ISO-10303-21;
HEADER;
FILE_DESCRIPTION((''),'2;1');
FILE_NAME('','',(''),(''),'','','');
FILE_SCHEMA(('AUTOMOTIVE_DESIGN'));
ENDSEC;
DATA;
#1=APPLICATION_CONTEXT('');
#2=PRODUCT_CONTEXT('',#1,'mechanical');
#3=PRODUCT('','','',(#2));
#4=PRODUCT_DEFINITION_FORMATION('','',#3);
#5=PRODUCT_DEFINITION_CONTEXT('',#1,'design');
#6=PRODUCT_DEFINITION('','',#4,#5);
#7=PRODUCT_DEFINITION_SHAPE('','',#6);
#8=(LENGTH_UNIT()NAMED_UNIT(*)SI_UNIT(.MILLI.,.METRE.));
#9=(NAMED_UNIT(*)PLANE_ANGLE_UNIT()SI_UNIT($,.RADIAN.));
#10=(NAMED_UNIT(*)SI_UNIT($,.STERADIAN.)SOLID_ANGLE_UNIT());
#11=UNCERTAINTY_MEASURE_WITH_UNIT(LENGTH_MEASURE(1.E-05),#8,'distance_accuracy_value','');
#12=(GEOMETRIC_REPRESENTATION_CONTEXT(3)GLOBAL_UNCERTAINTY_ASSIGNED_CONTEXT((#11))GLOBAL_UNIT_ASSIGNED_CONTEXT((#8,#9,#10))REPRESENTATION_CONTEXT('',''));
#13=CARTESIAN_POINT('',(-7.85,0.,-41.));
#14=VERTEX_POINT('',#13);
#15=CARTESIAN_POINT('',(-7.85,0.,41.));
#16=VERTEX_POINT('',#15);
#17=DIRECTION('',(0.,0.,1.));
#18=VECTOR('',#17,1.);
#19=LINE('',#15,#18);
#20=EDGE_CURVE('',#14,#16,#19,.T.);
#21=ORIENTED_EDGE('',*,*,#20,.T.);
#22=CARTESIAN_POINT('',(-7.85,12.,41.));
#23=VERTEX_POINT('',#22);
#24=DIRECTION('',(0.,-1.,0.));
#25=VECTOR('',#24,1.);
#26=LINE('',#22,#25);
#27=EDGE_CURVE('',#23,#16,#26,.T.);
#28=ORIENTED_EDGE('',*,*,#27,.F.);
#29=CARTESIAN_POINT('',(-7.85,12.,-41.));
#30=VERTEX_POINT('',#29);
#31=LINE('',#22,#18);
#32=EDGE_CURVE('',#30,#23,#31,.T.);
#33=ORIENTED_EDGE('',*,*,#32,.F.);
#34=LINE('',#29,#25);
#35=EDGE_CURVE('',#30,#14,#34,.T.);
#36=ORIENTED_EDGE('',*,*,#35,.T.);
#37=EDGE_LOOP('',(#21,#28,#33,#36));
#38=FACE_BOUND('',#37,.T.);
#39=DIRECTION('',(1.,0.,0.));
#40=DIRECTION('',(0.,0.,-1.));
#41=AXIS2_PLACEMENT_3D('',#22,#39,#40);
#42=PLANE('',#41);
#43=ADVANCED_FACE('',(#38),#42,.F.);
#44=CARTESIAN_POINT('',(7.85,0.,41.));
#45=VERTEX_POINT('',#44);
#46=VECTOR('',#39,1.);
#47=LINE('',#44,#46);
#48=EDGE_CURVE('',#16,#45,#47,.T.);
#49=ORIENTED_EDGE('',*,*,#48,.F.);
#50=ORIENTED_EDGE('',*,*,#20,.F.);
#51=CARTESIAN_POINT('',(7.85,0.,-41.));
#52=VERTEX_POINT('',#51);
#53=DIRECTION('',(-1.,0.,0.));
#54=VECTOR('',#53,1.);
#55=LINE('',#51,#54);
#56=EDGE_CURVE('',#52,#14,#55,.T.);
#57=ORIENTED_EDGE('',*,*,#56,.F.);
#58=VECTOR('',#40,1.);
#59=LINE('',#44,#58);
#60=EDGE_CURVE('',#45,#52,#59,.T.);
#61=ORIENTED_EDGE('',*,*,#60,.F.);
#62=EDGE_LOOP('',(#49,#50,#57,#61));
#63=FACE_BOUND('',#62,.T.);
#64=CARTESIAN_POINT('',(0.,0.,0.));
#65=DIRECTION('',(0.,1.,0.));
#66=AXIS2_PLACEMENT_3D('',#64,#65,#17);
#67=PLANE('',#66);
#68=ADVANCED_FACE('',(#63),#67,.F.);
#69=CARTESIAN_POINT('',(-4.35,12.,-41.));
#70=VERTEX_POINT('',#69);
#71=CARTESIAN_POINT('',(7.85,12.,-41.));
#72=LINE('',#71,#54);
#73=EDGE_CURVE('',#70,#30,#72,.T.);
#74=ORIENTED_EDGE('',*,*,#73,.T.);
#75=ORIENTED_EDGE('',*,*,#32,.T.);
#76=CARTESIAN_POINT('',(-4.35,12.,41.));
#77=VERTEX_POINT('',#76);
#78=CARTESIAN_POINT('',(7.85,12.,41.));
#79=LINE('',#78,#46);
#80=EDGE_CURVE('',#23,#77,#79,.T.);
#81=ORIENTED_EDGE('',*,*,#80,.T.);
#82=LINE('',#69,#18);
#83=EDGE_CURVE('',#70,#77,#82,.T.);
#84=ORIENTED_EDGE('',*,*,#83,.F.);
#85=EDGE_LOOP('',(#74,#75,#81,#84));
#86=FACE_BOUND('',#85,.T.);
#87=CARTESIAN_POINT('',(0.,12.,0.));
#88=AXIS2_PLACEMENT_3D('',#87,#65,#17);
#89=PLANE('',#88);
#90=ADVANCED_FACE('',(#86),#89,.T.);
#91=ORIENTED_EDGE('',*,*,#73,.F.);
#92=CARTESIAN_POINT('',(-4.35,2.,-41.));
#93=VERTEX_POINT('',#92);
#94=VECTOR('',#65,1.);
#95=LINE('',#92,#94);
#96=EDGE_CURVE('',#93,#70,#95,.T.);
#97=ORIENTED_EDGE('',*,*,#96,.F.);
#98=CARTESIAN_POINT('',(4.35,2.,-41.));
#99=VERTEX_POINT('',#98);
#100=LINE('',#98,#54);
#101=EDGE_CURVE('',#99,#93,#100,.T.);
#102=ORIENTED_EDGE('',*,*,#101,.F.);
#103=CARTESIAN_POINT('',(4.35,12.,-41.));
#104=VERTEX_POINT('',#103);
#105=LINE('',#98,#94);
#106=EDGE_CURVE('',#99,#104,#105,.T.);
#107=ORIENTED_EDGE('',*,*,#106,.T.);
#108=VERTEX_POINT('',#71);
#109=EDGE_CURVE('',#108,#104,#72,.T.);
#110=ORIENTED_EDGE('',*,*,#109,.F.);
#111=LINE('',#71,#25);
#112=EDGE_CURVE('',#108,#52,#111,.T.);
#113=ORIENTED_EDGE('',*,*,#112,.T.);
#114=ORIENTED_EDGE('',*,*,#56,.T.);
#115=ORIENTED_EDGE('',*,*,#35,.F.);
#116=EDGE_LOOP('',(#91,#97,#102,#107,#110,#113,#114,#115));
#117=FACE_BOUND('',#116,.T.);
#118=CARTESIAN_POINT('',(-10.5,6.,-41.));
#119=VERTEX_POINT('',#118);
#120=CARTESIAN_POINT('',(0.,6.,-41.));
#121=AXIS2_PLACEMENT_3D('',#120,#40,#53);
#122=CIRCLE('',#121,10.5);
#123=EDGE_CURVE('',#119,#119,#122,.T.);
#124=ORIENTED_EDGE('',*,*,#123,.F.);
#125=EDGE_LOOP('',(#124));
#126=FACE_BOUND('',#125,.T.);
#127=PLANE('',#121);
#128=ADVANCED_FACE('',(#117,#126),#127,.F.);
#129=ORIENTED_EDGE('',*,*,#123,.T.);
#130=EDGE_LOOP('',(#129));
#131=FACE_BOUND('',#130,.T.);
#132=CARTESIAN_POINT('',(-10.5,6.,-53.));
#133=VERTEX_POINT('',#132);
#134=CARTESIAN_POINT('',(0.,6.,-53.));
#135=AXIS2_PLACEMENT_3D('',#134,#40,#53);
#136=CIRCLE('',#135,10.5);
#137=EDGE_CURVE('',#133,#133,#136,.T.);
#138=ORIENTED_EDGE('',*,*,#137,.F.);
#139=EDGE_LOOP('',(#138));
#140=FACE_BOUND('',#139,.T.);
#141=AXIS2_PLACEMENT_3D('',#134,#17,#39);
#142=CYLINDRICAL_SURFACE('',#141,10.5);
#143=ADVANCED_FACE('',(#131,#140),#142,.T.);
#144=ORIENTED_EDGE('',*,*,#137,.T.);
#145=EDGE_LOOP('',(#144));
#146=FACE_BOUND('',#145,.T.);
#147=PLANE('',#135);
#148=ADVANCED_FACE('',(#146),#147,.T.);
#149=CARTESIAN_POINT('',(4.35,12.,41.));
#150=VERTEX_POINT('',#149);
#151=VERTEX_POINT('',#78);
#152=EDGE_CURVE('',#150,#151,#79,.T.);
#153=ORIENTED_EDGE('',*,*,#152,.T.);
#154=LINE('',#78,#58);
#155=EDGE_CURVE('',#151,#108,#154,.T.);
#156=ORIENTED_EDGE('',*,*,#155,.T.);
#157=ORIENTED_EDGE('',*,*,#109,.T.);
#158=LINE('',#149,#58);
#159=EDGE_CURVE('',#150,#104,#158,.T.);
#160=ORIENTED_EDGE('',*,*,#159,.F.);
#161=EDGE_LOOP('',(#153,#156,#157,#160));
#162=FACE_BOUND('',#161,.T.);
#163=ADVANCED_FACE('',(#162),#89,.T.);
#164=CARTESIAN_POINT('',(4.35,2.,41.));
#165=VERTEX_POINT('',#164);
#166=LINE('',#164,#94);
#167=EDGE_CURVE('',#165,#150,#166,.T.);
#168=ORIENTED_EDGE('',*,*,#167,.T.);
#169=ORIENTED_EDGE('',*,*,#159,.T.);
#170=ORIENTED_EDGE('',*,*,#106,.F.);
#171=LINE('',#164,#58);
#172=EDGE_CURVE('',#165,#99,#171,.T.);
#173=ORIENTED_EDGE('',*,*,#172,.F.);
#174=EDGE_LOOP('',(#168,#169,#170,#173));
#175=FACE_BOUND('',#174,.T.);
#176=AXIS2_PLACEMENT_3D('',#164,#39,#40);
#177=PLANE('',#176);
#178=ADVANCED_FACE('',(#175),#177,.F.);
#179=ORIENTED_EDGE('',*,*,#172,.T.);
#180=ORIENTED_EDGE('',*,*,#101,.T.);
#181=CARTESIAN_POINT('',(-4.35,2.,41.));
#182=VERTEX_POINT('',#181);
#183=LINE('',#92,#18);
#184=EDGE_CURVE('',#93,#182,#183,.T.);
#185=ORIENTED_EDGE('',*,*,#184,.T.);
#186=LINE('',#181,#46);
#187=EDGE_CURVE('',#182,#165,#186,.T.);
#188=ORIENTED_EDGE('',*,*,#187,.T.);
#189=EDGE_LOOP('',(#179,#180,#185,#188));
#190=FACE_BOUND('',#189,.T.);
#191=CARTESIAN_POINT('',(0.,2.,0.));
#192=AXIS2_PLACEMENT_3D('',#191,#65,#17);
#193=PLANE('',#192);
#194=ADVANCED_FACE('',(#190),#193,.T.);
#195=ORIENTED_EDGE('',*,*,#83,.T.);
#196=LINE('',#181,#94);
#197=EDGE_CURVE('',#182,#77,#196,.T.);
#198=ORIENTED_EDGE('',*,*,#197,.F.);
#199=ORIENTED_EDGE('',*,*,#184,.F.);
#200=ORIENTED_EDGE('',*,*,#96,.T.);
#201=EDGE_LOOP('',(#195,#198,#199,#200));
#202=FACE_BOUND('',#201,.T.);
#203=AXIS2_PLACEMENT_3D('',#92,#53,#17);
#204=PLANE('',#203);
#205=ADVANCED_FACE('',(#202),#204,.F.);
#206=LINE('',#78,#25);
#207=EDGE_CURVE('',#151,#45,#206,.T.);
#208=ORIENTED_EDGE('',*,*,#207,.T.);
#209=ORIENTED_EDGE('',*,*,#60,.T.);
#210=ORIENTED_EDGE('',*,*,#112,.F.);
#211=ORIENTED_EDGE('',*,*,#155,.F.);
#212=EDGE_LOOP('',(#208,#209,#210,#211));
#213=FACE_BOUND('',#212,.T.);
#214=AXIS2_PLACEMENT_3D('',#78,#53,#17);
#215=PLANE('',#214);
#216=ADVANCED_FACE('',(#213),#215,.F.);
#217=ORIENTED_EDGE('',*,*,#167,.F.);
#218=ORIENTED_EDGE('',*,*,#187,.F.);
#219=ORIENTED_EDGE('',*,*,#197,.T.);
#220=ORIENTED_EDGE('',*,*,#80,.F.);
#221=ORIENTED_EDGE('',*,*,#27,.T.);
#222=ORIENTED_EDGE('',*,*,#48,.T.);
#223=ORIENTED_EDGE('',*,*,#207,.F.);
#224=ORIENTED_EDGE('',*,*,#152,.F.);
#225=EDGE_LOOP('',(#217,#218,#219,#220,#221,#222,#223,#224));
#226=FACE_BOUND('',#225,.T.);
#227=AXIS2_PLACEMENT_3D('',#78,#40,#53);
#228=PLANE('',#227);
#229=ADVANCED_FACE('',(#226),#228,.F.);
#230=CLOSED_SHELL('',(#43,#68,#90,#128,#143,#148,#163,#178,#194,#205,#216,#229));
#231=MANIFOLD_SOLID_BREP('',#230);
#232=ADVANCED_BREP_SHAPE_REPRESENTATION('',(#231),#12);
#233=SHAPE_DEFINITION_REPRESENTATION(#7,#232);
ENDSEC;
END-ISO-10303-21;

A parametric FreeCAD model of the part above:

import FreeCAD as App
import Part
import Sketcher

V = App.Vector
Q = App.Units.Quantity


def add_polygon(sketch, points):
    """Adds a closed chain of lines whose ends are joined by coincident constraints."""
    first, n = sketch.GeometryCount, len(points)
    for a, b in zip(points, points[1:] + points[:1]):
        sketch.addGeometry(Part.LineSegment(App.Vector(*a, 0), App.Vector(*b, 0)), False)
    for i in range(n):
        sketch.addConstraint(Sketcher.Constraint("Coincident", first + i, 2, first + (i + 1) % n, 1))

doc = App.newDocument("Part")
body = doc.addObject("PartDesign::Body", "Body")

# Sketch on XZ plane
sketch1 = body.newObject("Sketcher::SketchObject", "Sketch")
sketch1.AttachmentSupport = (doc.getObject("XZ_Plane"), [""])
sketch1.MapMode = "FlatFace"
add_polygon(sketch1, [(-8, -41), (-8, 41), (8, 41), (8, -41)])  # lines 0-3
sketch1.addConstraint(Sketcher.Constraint("Vertical", 0))
sketch1.addConstraint(Sketcher.Constraint("Horizontal", 1))
sketch1.addConstraint(Sketcher.Constraint("Vertical", 2))
sketch1.addConstraint(Sketcher.Constraint("Horizontal", 3))
sketch1.addConstraint(Sketcher.Constraint("Symmetric", 0, 2, 2, 2, -1, 1))
sketch1.addConstraint(Sketcher.Constraint("DistanceY", 0, 1, 0, 2, Q("82 mm")))
sketch1.addConstraint(Sketcher.Constraint("DistanceX", 1, 1, 1, 2, Q("15.7 mm")))
pad1 = body.newObject("PartDesign::Pad", "Pad")
pad1.Profile = sketch1
pad1.Length = 12
pad1.Reversed = True

# Sketch on XZ plane
sketch2 = body.newObject("Sketcher::SketchObject", "Sketch001")
sketch2.AttachmentSupport = (doc.getObject("XZ_Plane"), [""])
sketch2.MapMode = "FlatFace"
sketch2.AttachmentOffset = App.Placement(V(0, 0, -12), App.Rotation())
add_polygon(sketch2, [(-4, -41), (-4, 41), (4, 41), (4, -41)])  # lines 0-3
sketch2.addConstraint(Sketcher.Constraint("Vertical", 0))
sketch2.addConstraint(Sketcher.Constraint("Horizontal", 1))
sketch2.addConstraint(Sketcher.Constraint("Vertical", 2))
sketch2.addConstraint(Sketcher.Constraint("Horizontal", 3))
sketch2.addConstraint(Sketcher.Constraint("Symmetric", 0, 2, 2, 2, -1, 1))
sketch2.addConstraint(Sketcher.Constraint("DistanceY", 0, 1, 0, 2, Q("82 mm")))
sketch2.addConstraint(Sketcher.Constraint("DistanceX", 1, 1, 1, 2, Q("8.7 mm")))
pocket1 = body.newObject("PartDesign::Pocket", "Pocket")
pocket1.Profile = sketch2
pocket1.Length = 10
pocket1.Reversed = True

# Sketch on XY plane
sketch3 = body.newObject("Sketcher::SketchObject", "Sketch002")
sketch3.AttachmentSupport = (doc.getObject("XY_Plane"), [""])
sketch3.MapMode = "FlatFace"
sketch3.AttachmentOffset = App.Placement(V(0, 0, -41), App.Rotation())
sketch3.addGeometry(Part.Circle(V(0, 6, 0), V(0, 0, 1), 10), False)
sketch3.addConstraint(Sketcher.Constraint("PointOnObject", 0, 3, -2))
sketch3.addConstraint(Sketcher.Constraint("Diameter", 0, Q("21 mm")))
sketch3.addConstraint(Sketcher.Constraint("DistanceY", -1, 1, 0, 3, Q("6 mm")))
pad2 = body.newObject("PartDesign::Pad", "Pad001")
pad2.Profile = sketch3
pad2.Length = 12
pad2.Reversed = True

doc.recompute()
